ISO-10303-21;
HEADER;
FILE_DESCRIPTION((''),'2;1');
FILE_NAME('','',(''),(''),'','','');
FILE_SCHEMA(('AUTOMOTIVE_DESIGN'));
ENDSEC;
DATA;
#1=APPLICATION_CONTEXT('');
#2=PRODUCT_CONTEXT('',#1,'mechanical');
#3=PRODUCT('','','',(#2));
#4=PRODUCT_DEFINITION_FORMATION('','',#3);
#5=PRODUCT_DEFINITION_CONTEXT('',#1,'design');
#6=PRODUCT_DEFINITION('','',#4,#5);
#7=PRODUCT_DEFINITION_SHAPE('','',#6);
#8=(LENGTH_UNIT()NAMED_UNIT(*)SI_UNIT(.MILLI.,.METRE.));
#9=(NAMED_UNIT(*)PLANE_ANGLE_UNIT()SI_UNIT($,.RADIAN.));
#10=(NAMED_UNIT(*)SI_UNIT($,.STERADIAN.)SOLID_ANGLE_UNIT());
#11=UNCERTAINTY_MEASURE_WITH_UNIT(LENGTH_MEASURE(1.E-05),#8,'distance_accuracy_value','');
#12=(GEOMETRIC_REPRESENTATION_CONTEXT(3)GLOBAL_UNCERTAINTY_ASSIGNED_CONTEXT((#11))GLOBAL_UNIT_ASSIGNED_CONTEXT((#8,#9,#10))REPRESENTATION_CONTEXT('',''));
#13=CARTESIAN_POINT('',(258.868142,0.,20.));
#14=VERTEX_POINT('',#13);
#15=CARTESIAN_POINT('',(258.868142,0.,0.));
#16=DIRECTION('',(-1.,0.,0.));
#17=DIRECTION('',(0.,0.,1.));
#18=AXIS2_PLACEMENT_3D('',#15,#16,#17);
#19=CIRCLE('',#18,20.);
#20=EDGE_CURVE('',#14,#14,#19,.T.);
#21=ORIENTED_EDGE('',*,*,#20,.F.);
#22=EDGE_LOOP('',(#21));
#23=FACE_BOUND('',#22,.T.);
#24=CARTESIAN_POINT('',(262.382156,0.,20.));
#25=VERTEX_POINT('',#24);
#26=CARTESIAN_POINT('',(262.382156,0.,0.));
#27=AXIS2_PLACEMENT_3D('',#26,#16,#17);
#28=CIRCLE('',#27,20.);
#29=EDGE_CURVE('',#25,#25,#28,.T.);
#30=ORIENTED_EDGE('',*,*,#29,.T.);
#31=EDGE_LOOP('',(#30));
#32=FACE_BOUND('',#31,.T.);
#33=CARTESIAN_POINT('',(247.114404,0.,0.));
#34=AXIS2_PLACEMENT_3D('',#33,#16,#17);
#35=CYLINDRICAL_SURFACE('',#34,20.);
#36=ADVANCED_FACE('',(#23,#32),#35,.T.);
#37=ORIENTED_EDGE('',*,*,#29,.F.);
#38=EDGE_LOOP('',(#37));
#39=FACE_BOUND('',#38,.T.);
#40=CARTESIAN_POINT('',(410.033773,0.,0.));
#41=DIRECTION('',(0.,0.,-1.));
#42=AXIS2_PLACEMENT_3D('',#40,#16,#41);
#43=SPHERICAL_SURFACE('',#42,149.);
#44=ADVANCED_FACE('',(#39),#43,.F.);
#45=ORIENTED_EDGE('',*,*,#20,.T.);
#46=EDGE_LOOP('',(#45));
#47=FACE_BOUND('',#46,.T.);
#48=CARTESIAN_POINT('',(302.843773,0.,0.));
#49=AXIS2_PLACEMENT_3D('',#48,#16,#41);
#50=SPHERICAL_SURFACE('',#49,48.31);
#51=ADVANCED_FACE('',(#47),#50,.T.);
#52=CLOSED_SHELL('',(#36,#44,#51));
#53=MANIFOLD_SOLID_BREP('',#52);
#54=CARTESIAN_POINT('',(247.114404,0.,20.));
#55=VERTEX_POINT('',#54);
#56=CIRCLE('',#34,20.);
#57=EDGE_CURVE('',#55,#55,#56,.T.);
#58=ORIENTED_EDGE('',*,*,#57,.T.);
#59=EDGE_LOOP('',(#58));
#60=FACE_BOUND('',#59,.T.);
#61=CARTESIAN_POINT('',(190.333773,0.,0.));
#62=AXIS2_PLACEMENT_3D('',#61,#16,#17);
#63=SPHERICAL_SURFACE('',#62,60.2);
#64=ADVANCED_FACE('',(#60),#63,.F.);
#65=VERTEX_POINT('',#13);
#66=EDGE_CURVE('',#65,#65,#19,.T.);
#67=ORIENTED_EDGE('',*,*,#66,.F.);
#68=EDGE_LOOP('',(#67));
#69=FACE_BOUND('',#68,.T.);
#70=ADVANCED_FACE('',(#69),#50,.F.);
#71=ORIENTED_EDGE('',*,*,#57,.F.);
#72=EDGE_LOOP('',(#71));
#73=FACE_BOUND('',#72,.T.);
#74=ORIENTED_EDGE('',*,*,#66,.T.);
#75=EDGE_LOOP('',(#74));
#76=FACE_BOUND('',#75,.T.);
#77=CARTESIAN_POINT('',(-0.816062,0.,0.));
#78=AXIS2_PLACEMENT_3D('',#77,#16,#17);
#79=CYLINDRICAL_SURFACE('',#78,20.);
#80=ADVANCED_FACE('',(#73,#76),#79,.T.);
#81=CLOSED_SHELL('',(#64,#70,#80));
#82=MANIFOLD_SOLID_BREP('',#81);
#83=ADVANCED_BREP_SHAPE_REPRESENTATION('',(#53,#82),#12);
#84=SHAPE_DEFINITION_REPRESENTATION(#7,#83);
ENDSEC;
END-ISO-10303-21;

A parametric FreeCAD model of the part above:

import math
import FreeCAD as App
import Part
import Sketcher
from FreeCAD import Vector

doc = App.newDocument("Part")
body = doc.addObject("PartDesign::Body", "Body")

# Sketch on XZ plane
sketch1 = body.newObject("Sketcher::SketchObject", "Sketch")
sketch1.AttachmentSupport = (doc.getObject("XZ_Plane"), [""])
sketch1.MapMode = "FlatFace"
sketch1.addGeometry([
    Part.LineSegment(Vector(258.9, -20, 0), Vector(247.1, -20, 0)),
    Part.ArcOfCircle(Part.Circle(Vector(190.3, 0, 0), Vector(0, 0, 1), 60.2), math.radians(-19.4), math.radians(0)),
    Part.LineSegment(Vector(250.5, 0, 0), Vector(254.5, 0, 0)),
    Part.ArcOfCircle(Part.Circle(Vector(302.8, 0, 0), Vector(0, 0, 1), 48.3), math.radians(180), math.radians(204)),
], False)
sketch1.addConstraint([
    Sketcher.Constraint("Coincident", 0, 2, 1, 1),
    Sketcher.Constraint("Coincident", 1, 2, 2, 1),
    Sketcher.Constraint("Coincident", 2, 2, 3, 1),
    Sketcher.Constraint("Coincident", 3, 2, 0, 1),
    Sketcher.Constraint("Horizontal", 0),
    Sketcher.Constraint("Horizontal", 2),
    Sketcher.Constraint("PointOnObject", 1, 3, -1),
    Sketcher.Constraint("PointOnObject", 3, 3, -1),
    Sketcher.Constraint("PointOnObject", 1, 2, -1),
    Sketcher.Constraint("Radius", 1, 60.2),
    Sketcher.Constraint("DistanceX", 2, 1, 2, 2, 4.0),
    Sketcher.Constraint("Radius", 3, 48.31),
    Sketcher.Constraint("DistanceY", 0, 2, -1, 1, 20.0),
    Sketcher.Constraint("DistanceX", -1, 1, 1, 3, 190.333773),
])
revolution = body.newObject("PartDesign::Revolution", "Revolution")
revolution.Profile = sketch1
revolution.ReferenceAxis = (sketch1, ["H_Axis"])
revolution.Angle = 360
body2 = doc.addObject("PartDesign::Body", "Body001")

# Sketch on XZ plane
sketch2 = body2.newObject("Sketcher::SketchObject", "Sketch001")
sketch2.AttachmentSupport = (doc.getObject("XZ_Plane001"), [""])
sketch2.MapMode = "FlatFace"
sketch2.addGeometry([
    Part.LineSegment(Vector(262.4, -20, 0), Vector(258.9, -20, 0)),
    Part.ArcOfCircle(Part.Circle(Vector(302.8, 0, 0), Vector(0, 0, 1), 48.3), math.radians(180), math.radians(204)),
    Part.LineSegment(Vector(254.5, 0, 0), Vector(261, 0, 0)),
    Part.ArcOfCircle(Part.Circle(Vector(410, 0, 0), Vector(0, 0, 1), 149), math.radians(180), math.radians(187.71)),
], False)
sketch2.addConstraint([
    Sketcher.Constraint("Coincident", 0, 2, 1, 2),
    Sketcher.Constraint("Coincident", 1, 1, 2, 1),
    Sketcher.Constraint("Coincident", 2, 2, 3, 1),
    Sketcher.Constraint("Coincident", 3, 2, 0, 1),
    Sketcher.Constraint("Horizontal", 0),
    Sketcher.Constraint("Horizontal", 2),
    Sketcher.Constraint("PointOnObject", 1, 3, -1),
    Sketcher.Constraint("PointOnObject", 3, 3, -1),
    Sketcher.Constraint("PointOnObject", 1, 1, -1),
    Sketcher.Constraint("Radius", 3, 149.0),
    Sketcher.Constraint("Radius", 1, 48.31),
    Sketcher.Constraint("DistanceX", 2, 1, 2, 2, 6.5),
    Sketcher.Constraint("DistanceY", 0, 2, -1, 1, 20.0),
    Sketcher.Constraint("DistanceX", -1, 1, 1, 3, 302.843773),
])
revolution2 = body2.newObject("PartDesign::Revolution", "Revolution001")
revolution2.Profile = sketch2
revolution2.ReferenceAxis = (sketch2, ["H_Axis"])
revolution2.Angle = 360

doc.recompute()
